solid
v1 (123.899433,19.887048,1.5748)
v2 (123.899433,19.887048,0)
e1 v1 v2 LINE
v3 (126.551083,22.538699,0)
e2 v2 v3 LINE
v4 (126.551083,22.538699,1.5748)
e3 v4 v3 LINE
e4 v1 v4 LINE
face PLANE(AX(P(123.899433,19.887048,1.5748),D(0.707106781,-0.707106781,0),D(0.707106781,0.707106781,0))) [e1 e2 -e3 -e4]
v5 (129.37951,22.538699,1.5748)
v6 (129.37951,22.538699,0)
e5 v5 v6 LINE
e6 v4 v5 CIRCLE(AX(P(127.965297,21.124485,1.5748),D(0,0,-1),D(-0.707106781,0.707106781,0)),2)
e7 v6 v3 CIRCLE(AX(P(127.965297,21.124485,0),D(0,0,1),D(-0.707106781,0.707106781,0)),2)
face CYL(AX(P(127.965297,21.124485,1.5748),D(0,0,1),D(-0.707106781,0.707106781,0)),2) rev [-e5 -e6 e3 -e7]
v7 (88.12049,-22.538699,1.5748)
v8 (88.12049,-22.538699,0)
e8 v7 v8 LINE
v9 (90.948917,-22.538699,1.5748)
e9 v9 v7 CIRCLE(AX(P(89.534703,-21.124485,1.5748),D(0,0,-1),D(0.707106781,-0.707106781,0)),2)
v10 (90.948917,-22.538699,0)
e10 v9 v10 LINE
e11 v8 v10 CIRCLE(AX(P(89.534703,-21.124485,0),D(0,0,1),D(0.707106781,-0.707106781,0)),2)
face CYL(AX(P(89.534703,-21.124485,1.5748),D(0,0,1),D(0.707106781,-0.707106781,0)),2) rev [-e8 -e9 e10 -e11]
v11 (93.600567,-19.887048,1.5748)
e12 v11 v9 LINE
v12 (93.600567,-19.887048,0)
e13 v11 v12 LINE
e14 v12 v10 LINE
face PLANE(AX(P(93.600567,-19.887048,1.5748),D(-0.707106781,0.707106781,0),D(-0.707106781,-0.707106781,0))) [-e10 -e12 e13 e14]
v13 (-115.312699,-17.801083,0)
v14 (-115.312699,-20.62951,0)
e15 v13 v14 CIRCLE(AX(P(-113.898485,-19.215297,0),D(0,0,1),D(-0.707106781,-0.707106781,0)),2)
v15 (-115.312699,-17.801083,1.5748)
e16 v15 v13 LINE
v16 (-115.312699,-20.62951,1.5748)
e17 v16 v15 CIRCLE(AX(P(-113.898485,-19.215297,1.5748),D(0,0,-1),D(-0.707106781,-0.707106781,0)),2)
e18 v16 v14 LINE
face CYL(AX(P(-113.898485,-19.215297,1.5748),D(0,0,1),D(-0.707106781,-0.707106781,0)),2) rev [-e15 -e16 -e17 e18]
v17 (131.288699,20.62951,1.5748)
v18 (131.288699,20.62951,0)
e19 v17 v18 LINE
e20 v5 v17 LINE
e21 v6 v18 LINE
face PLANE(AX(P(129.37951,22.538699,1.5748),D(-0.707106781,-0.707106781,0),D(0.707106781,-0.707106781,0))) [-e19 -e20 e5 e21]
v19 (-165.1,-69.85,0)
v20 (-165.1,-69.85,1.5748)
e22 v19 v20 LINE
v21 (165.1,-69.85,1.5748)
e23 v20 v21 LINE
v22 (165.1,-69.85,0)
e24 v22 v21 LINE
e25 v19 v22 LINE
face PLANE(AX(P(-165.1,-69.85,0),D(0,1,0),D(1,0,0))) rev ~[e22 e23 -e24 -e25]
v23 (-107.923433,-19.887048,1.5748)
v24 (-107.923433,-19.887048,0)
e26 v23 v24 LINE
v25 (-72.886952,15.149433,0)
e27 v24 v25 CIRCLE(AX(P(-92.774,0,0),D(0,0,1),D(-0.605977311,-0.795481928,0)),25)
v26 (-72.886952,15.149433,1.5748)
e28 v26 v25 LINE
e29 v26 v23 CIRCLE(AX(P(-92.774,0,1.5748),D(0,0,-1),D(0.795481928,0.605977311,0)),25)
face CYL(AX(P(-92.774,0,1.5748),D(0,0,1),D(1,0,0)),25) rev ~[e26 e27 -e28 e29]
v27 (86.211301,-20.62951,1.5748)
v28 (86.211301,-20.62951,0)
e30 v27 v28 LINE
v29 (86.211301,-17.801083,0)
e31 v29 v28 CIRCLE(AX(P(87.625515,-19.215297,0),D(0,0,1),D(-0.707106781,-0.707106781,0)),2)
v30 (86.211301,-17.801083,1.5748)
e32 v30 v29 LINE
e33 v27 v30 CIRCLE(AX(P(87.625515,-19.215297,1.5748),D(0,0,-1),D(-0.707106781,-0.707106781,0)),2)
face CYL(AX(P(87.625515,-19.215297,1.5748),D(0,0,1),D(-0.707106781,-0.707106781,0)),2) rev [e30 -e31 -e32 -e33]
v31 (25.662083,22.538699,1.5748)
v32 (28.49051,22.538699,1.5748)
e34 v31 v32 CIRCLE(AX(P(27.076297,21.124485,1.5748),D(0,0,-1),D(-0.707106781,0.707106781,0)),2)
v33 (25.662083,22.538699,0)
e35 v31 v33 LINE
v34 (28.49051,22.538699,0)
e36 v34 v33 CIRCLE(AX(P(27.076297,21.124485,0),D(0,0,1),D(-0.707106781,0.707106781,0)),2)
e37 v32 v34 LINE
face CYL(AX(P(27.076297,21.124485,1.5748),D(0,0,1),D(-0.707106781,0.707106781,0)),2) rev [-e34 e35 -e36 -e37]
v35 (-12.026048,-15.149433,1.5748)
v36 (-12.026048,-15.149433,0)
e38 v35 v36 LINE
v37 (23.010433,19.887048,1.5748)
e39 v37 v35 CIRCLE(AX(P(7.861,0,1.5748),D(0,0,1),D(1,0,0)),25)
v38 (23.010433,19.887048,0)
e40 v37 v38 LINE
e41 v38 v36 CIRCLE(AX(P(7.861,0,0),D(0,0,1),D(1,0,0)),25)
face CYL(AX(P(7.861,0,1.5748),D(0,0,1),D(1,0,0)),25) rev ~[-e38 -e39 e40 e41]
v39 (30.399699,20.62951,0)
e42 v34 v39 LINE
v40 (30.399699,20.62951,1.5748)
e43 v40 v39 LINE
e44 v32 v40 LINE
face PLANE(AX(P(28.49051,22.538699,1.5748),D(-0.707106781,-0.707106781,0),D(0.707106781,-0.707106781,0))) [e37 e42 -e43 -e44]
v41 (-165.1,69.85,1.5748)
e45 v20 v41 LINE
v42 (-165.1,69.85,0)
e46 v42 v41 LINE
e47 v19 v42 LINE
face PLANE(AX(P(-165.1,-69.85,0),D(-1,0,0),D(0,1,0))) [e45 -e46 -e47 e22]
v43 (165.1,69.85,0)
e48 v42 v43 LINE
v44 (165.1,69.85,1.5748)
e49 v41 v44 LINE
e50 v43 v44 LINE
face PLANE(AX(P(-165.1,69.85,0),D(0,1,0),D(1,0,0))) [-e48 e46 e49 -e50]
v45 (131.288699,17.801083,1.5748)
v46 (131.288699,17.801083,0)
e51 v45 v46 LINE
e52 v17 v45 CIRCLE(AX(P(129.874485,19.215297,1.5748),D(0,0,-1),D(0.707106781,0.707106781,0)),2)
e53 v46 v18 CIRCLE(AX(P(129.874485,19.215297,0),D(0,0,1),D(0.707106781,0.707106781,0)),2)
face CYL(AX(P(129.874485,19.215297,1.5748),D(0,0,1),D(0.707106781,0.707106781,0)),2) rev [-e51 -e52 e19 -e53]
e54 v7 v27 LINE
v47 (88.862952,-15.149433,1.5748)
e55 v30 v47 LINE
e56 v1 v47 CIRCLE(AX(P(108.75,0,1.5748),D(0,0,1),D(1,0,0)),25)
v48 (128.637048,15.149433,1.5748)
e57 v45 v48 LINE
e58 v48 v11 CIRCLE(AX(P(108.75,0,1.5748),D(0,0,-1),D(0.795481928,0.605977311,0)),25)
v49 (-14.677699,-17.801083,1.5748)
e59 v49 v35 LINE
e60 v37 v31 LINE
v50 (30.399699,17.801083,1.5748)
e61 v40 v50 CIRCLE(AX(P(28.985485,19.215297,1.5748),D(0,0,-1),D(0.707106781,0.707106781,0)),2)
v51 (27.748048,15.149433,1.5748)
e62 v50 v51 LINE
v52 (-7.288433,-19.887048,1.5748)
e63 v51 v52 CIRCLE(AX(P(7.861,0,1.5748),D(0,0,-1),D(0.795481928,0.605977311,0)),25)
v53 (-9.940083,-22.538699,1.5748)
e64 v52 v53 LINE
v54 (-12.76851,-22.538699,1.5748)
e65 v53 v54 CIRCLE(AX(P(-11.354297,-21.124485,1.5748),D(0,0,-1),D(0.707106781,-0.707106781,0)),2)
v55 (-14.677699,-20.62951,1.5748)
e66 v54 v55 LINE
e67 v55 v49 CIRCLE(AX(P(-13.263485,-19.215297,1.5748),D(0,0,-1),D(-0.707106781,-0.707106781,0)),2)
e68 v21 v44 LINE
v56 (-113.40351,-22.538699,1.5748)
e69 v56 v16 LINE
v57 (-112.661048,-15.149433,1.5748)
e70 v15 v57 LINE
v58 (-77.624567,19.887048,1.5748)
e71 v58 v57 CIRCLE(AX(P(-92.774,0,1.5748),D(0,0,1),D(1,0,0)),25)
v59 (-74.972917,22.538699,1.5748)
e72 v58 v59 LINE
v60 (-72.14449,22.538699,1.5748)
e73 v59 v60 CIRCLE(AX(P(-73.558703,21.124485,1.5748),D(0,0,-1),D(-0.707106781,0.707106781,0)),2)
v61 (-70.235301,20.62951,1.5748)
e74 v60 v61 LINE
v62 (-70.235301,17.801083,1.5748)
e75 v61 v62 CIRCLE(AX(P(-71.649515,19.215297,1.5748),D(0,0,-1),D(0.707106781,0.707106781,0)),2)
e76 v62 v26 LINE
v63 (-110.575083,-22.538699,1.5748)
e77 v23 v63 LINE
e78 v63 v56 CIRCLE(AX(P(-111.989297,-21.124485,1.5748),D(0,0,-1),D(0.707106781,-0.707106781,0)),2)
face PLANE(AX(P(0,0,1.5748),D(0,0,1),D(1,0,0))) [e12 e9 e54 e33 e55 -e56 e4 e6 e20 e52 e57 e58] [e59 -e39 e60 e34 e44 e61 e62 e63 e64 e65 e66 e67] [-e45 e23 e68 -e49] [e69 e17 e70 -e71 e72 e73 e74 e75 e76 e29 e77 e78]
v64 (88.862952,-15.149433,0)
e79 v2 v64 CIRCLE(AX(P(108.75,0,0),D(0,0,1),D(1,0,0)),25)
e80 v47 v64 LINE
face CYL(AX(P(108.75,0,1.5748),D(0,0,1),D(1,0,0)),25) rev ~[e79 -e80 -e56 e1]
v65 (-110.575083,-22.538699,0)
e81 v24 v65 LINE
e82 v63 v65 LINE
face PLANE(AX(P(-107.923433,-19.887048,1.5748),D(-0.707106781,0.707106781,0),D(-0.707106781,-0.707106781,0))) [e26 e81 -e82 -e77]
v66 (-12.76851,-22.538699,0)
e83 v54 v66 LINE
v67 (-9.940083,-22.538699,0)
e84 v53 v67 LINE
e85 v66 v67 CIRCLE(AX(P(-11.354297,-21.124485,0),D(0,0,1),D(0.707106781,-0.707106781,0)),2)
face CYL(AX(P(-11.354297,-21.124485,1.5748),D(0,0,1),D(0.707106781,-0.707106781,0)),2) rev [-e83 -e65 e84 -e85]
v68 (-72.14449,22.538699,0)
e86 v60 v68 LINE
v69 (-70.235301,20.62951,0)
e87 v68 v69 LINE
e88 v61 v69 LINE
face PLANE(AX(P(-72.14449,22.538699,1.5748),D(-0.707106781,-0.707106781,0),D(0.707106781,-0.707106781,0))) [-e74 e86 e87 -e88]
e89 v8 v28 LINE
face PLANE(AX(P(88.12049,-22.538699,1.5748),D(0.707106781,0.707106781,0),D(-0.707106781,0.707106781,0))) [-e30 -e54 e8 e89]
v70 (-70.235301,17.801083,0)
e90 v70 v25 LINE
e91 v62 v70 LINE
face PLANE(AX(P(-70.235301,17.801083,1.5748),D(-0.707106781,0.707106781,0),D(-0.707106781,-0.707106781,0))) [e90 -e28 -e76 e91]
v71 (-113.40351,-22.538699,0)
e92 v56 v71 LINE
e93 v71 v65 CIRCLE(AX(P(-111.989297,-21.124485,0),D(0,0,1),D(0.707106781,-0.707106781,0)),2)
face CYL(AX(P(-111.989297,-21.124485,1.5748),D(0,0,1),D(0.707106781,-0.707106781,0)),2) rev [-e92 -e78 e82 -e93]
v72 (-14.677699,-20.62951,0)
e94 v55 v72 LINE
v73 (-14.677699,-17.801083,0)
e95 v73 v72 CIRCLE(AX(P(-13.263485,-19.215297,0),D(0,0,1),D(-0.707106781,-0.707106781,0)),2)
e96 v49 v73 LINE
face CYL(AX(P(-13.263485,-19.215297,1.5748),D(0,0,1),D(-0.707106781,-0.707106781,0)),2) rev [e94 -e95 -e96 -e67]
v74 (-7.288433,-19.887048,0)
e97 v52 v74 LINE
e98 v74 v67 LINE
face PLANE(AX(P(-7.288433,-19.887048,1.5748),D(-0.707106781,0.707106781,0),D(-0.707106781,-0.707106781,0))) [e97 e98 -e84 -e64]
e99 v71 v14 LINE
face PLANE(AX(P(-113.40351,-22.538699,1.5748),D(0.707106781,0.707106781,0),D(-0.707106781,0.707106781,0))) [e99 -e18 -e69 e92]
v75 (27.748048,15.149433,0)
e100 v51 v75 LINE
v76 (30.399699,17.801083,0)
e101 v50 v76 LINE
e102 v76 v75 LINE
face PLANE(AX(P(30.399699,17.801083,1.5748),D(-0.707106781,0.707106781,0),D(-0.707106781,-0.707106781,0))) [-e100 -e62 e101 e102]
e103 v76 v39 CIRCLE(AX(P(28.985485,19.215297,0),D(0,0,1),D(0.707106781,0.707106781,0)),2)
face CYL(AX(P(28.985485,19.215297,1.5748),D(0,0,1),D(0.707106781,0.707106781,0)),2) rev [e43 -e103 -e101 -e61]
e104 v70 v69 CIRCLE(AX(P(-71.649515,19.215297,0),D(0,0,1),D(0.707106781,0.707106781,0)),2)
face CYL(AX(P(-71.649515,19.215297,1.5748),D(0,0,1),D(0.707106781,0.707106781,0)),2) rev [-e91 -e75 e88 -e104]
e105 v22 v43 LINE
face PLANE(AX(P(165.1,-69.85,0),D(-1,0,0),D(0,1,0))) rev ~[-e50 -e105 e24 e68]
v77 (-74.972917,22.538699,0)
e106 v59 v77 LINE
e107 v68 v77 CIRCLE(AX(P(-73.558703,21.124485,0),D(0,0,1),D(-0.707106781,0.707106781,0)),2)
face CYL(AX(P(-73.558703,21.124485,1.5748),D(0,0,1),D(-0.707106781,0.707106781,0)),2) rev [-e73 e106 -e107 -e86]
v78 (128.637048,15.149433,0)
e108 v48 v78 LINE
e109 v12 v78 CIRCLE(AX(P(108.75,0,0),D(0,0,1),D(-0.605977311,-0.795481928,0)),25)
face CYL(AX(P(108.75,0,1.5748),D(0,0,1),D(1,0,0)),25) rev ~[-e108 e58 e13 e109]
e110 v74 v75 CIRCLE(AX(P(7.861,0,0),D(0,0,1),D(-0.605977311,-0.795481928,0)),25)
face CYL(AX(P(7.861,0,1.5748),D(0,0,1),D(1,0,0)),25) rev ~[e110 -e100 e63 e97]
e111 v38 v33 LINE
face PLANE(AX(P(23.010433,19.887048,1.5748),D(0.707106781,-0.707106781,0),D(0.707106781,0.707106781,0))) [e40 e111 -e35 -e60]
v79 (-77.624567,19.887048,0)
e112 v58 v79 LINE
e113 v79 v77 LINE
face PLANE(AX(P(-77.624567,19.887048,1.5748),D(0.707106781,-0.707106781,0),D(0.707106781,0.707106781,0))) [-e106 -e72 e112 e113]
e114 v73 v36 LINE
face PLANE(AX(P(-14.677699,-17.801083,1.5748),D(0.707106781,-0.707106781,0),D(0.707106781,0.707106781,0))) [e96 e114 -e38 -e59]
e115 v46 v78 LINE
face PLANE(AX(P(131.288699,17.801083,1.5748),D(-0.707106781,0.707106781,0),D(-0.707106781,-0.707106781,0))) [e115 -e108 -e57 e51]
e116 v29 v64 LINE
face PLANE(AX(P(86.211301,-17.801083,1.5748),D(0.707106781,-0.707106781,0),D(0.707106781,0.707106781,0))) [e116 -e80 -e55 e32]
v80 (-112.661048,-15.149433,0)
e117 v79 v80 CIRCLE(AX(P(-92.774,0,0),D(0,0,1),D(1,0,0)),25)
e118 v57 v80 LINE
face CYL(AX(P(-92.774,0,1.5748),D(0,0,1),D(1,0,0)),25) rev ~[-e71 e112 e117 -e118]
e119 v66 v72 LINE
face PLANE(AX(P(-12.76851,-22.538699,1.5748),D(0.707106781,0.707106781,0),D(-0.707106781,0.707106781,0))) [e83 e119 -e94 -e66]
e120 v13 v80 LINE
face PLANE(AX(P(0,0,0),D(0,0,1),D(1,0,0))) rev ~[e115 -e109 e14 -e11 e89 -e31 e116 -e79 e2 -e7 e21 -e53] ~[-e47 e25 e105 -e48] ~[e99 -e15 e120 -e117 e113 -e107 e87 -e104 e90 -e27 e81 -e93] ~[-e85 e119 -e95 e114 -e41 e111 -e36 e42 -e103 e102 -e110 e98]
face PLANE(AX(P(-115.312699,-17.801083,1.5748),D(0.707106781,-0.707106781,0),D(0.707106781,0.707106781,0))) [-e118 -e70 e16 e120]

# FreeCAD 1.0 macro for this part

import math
import FreeCAD as App
import Part
import Sketcher
from FreeCAD import Vector

doc = App.newDocument("Part")
body = doc.addObject("PartDesign::Body", "Body")

# Sketch on XY plane
sketch1 = body.newObject("Sketcher::SketchObject", "Sketch")
sketch1.AttachmentSupport = (doc.getObject("XY_Plane"), [""])
sketch1.MapMode = "FlatFace"
sketch1.addGeometry([
    Part.LineSegment(Vector(-165, 70, 0), Vector(-165, -70, 0)),
    Part.LineSegment(Vector(-165, -70, 0), Vector(165, -70, 0)),
    Part.LineSegment(Vector(165, -70, 0), Vector(165, 70, 0)),
    Part.LineSegment(Vector(165, 70, 0), Vector(-165, 70, 0)),
], False)
sketch1.addConstraint([
    Sketcher.Constraint("Coincident", 0, 2, 1, 1),
    Sketcher.Constraint("Coincident", 1, 2, 2, 1),
    Sketcher.Constraint("Coincident", 2, 2, 3, 1),
    Sketcher.Constraint("Coincident", 3, 2, 0, 1),
    Sketcher.Constraint("Vertical", 0),
    Sketcher.Constraint("Horizontal", 1),
    Sketcher.Constraint("Vertical", 2),
    Sketcher.Constraint("Horizontal", 3),
    Sketcher.Constraint("Symmetric", 0, 2, 2, 2, -1, 1),
    Sketcher.Constraint("DistanceX", 1, 1, 1, 2, 330.2),
    Sketcher.Constraint("DistanceY", 0, 2, 0, 1, 139.7),
])
pad1 = body.newObject("PartDesign::Pad", "Pad")
pad1.Profile = sketch1
pad1.Length = 1.5748

# Sketch on XY plane
sketch2 = body.newObject("Sketcher::SketchObject", "Sketch001")
sketch2.AttachmentSupport = (doc.getObject("XY_Plane"), [""])
sketch2.MapMode = "FlatFace"
sketch2.AttachmentOffset = App.Placement(Vector(0, 0, 1.5748), App.Rotation())
sketch2.addGeometry([
    Part.Circle(Vector(109, 0, 0), Vector(0, 0, 1), 25),
    Part.Circle(Vector(8, 0, 0), Vector(0, 0, 1), 25),
    Part.Circle(Vector(-93, 0, 0), Vector(0, 0, 1), 25),
], False)
sketch2.addConstraint([
    Sketcher.Constraint("Equal", 0, 1),
    Sketcher.Constraint("Equal", 1, 2),
    Sketcher.Constraint("PointOnObject", 0, 3, -1),
    Sketcher.Constraint("PointOnObject", 1, 3, -1),
    Sketcher.Constraint("PointOnObject", 2, 3, -1),
    Sketcher.Constraint("Diameter", 0, 50.0),
    Sketcher.Constraint("DistanceX", -1, 1, 0, 3, 108.75),
    Sketcher.Constraint("DistanceX", -1, 1, 1, 3, 7.861),
    Sketcher.Constraint("DistanceX", 2, 3, -1, 1, 92.774),
])
pocket1 = body.newObject("PartDesign::Pocket", "Pocket")
pocket1.Profile = sketch2
pocket1.Type = "ThroughAll"

# Sketch on XY plane
sketch3 = body.newObject("Sketcher::SketchObject", "Sketch002")
sketch3.AttachmentSupport = (doc.getObject("XY_Plane"), [""])
sketch3.MapMode = "FlatFace"
sketch3.AttachmentOffset = App.Placement(Vector(0, 0, 1.5748), App.Rotation())
sketch3.addGeometry([
    Part.LineSegment(Vector(86.2, -20.6, 0), Vector(88.1, -22.5, 0)),  # 0
    Part.ArcOfCircle(Part.Circle(Vector(89.5, -21.1, 0), Vector(0, 0, 1), 2), math.radians(-135), math.radians(-45)),  # 1
    Part.LineSegment(Vector(90.9, -22.5, 0), Vector(93.6, -19.9, 0)),  # 2
    Part.ArcOfCircle(Part.Circle(Vector(108.7, 0, 0), Vector(0, 0, 1), 25), math.radians(-142.7), math.radians(-127.3)),  # 3
    Part.LineSegment(Vector(88.9, -15.1, 0), Vector(86.2, -17.8, 0)),  # 4
    Part.ArcOfCircle(Part.Circle(Vector(87.6, -19.2, 0), Vector(0, 0, 1), 2), math.radians(135), math.radians(225)),  # 5
    Part.LineSegment(Vector(128.6, 15.1, 0), Vector(131.3, 17.8, 0)),  # 6
    Part.ArcOfCircle(Part.Circle(Vector(129.9, 19.2, 0), Vector(0, 0, 1), 2), math.radians(-45), math.radians(45)),  # 7
    Part.LineSegment(Vector(131.3, 20.6, 0), Vector(129.4, 22.5, 0)),  # 8
    Part.ArcOfCircle(Part.Circle(Vector(128, 21.1, 0), Vector(0, 0, 1), 2), math.radians(45), math.radians(135)),  # 9
    Part.LineSegment(Vector(126.6, 22.5, 0), Vector(123.9, 19.9, 0)),  # 10
    Part.ArcOfCircle(Part.Circle(Vector(108.8, 0, 0), Vector(0, 0, 1), 25), math.radians(37.3), math.radians(52.7)),  # 11
    Part.LineSegment(Vector(27.7, 15.1, 0), Vector(30.4, 17.8, 0)),  # 12
    Part.ArcOfCircle(Part.Circle(Vector(29, 19.2, 0), Vector(0, 0, 1), 2), math.radians(-45), math.radians(45)),  # 13
    Part.LineSegment(Vector(30.4, 20.6, 0), Vector(28.5, 22.5, 0)),  # 14
    Part.ArcOfCircle(Part.Circle(Vector(27.1, 21.1, 0), Vector(0, 0, 1), 2), math.radians(45), math.radians(135)),  # 15
    Part.LineSegment(Vector(25.7, 22.5, 0), Vector(23, 19.9, 0)),  # 16
    Part.ArcOfCircle(Part.Circle(Vector(7.9, 0, 0), Vector(0, 0, 1), 25), math.radians(37.3), math.radians(52.7)),  # 17
    Part.LineSegment(Vector(-9.9, -22.5, 0), Vector(-7.3, -19.9, 0)),  # 18
    Part.ArcOfCircle(Part.Circle(Vector(7.9, 0, 0), Vector(0, 0, 1), 25), math.radians(-142.7), math.radians(-127.3)),  # 19
    Part.LineSegment(Vector(-12, -15.1, 0), Vector(-14.7, -17.8, 0)),  # 20
    Part.ArcOfCircle(Part.Circle(Vector(-13.3, -19.2, 0), Vector(0, 0, 1), 2), math.radians(135), math.radians(225)),  # 21
    Part.LineSegment(Vector(-14.7, -20.6, 0), Vector(-12.8, -22.5, 0)),  # 22
    Part.ArcOfCircle(Part.Circle(Vector(-11.4, -21.1, 0), Vector(0, 0, 1), 2), math.radians(-135), math.radians(-45)),  # 23
    Part.LineSegment(Vector(-112.7, -15.1, 0), Vector(-115.3, -17.8, 0)),  # 24
    Part.ArcOfCircle(Part.Circle(Vector(-113.9, -19.2, 0), Vector(0, 0, 1), 2), math.radians(135), math.radians(225)),  # 25
    Part.LineSegment(Vector(-115.3, -20.6, 0), Vector(-113.4, -22.5, 0)),  # 26
    Part.ArcOfCircle(Part.Circle(Vector(-112, -21.1, 0), Vector(0, 0, 1), 2), math.radians(-135), math.radians(-45)),  # 27
    Part.LineSegment(Vector(-110.6, -22.5, 0), Vector(-107.9, -19.9, 0)),  # 28
    Part.ArcOfCircle(Part.Circle(Vector(-92.8, 0, 0), Vector(0, 0, 1), 25), math.radians(-142.7), math.radians(-127.3)),  # 29
    Part.LineSegment(Vector(-72.9, 15.1, 0), Vector(-70.2, 17.8, 0)),  # 30
    Part.ArcOfCircle(Part.Circle(Vector(-71.6, 19.2, 0), Vector(0, 0, 1), 2), math.radians(-45), math.radians(45)),  # 31
    Part.LineSegment(Vector(-70.2, 20.6, 0), Vector(-72.1, 22.5, 0)),  # 32
    Part.ArcOfCircle(Part.Circle(Vector(-73.6, 21.1, 0), Vector(0, 0, 1), 2), math.radians(45), math.radians(135)),  # 33
    Part.LineSegment(Vector(-75, 22.5, 0), Vector(-77.6, 19.9, 0)),  # 34
    Part.ArcOfCircle(Part.Circle(Vector(-92.8, 0, 0), Vector(0, 0, 1), 25), math.radians(37.3), math.radians(52.7)),  # 35
], False)
sketch3.addConstraint([
    Sketcher.Constraint("Tangent", 0, 2, 1, 1),
    Sketcher.Constraint("Tangent", 1, 2, 2, 1),
    Sketcher.Constraint("Coincident", 2, 2, 3, 2),
    Sketcher.Constraint("Coincident", 3, 1, 4, 1),
    Sketcher.Constraint("Tangent", 4, 2, 5, 1),
    Sketcher.Constraint("Tangent", 5, 2, 0, 1),
    Sketcher.Constraint("Tangent", 6, 2, 7, 1),
    Sketcher.Constraint("Tangent", 7, 2, 8, 1),
    Sketcher.Constraint("Tangent", 8, 2, 9, 1),
    Sketcher.Constraint("Tangent", 9, 2, 10, 1),
    Sketcher.Constraint("Coincident", 10, 2, 11, 2),
    Sketcher.Constraint("Coincident", 11, 1, 6, 1),
    Sketcher.Constraint("Tangent", 12, 2, 13, 1),
    Sketcher.Constraint("Tangent", 13, 2, 14, 1),
    Sketcher.Constraint("Tangent", 14, 2, 15, 1),
    Sketcher.Constraint("Tangent", 15, 2, 16, 1),
    Sketcher.Constraint("Coincident", 16, 2, 17, 2),
    Sketcher.Constraint("Coincident", 17, 1, 12, 1),
    Sketcher.Constraint("Coincident", 18, 2, 19, 2),
    Sketcher.Constraint("Coincident", 19, 1, 20, 1),
    Sketcher.Constraint("Tangent", 20, 2, 21, 1),
    Sketcher.Constraint("Tangent", 21, 2, 22, 1),
    Sketcher.Constraint("Tangent", 22, 2, 23, 1),
    Sketcher.Constraint("Tangent", 23, 2, 18, 1),
    Sketcher.Constraint("Tangent", 24, 2, 25, 1),
    Sketcher.Constraint("Tangent", 25, 2, 26, 1),
    Sketcher.Constraint("Tangent", 26, 2, 27, 1),
    Sketcher.Constraint("Tangent", 27, 2, 28, 1),
    Sketcher.Constraint("Coincident", 28, 2, 29, 2),
    Sketcher.Constraint("Coincident", 29, 1, 24, 1),
    Sketcher.Constraint("Tangent", 30, 2, 31, 1),
    Sketcher.Constraint("Tangent", 31, 2, 32, 1),
    Sketcher.Constraint("Tangent", 32, 2, 33, 1),
    Sketcher.Constraint("Tangent", 33, 2, 34, 1),
    Sketcher.Constraint("Coincident", 34, 2, 35, 2),
    Sketcher.Constraint("Coincident", 35, 1, 30, 1),
    Sketcher.Constraint("Coincident", 11, 3, 3, 3),
    Sketcher.Constraint("Coincident", 19, 3, 17, 3),
    Sketcher.Constraint("Coincident", 35, 3, 29, 3),
    Sketcher.Constraint("Equal", 1, 5),
    Sketcher.Constraint("Equal", 5, 7),
    Sketcher.Constraint("Equal", 7, 9),
    Sketcher.Constraint("Equal", 3, 11),
    Sketcher.Constraint("Equal", 9, 13),
    Sketcher.Constraint("Equal", 13, 15),
    Sketcher.Constraint("Equal", 11, 17),
    Sketcher.Constraint("Equal", 17, 19),
    Sketcher.Constraint("Equal", 15, 21),
    Sketcher.Constraint("Equal", 21, 23),
    Sketcher.Constraint("Equal", 23, 25),
    Sketcher.Constraint("Equal", 25, 27),
    Sketcher.Constraint("Equal", 19, 29),
    Sketcher.Constraint("Equal", 27, 31),
    Sketcher.Constraint("Equal", 31, 33),
    Sketcher.Constraint("Equal", 29, 35),
    Sketcher.Constraint("PointOnObject", 3, 3, -1),
    Sketcher.Constraint("PointOnObject", 17, 3, -1),
    Sketcher.Constraint("PointOnObject", 29, 3, -1),
    Sketcher.Constraint("Perpendicular", 0, 2),
    Sketcher.Constraint("Parallel", 2, 4),
    Sketcher.Constraint("Parallel", 4, 6),
    Sketcher.Constraint("Perpendicular", 6, 8),
    Sketcher.Constraint("Perpendicular", 8, 10),
    Sketcher.Constraint("Parallel", 10, 12),
    Sketcher.Constraint("Perpendicular", 12, 14),
    Sketcher.Constraint("Perpendicular", 14, 16),
    Sketcher.Constraint("Parallel", 16, 18),
    Sketcher.Constraint("Parallel", 18, 20),
    Sketcher.Constraint("Perpendicular", 20, 22),
    Sketcher.Constraint("Perpendicular", 22, 24),
    Sketcher.Constraint("Perpendicular", 24, 26),
    Sketcher.Constraint("Perpendicular", 26, 28),
    Sketcher.Constraint("Parallel", 28, 30),
    Sketcher.Constraint("Perpendicular", 30, 32),
    Sketcher.Constraint("Perpendicular", 32, 34),
    Sketcher.Constraint("Horizontal", 7, 3, 13, 3),
    Sketcher.Constraint("Horizontal", 9, 3, 15, 3),
    Sketcher.Constraint("Horizontal", 5, 3, 21, 3),
    Sketcher.Constraint("Horizontal", 1, 3, 23, 3),
    Sketcher.Constraint("Horizontal", 21, 3, 25, 3),
    Sketcher.Constraint("Horizontal", 23, 3, 27, 3),
    Sketcher.Constraint("Horizontal", 13, 3, 31, 3),
    Sketcher.Constraint("Horizontal", 15, 3, 33, 3),
    Sketcher.Constraint("Horizontal", 0, 2, 1, 2),
    Sketcher.Constraint("Horizontal", 10, 2, 16, 2),
    Sketcher.Constraint("Horizontal", 2, 2, 18, 2),
    Sketcher.Constraint("Horizontal", 18, 2, 28, 2),
    Sketcher.Constraint("Horizontal", 16, 2, 34, 2),
    Sketcher.Constraint("Equal", 2, 4),
    Sketcher.Constraint("Equal", 4, 6),
    Sketcher.Constraint("Equal", 0, 8),
    Sketcher.Constraint("Equal", 6, 10),
    Sketcher.Constraint("Radius", 1, 2.0),
    Sketcher.Constraint("Radius", 3, 25.0),
    Sketcher.Constraint("Distance", 0, 2.7),
    Sketcher.Constraint("Distance", 2, 3.75),
    Sketcher.Constraint("DistanceX", -1, 1, 3, 3, 108.75),
    Sketcher.Constraint("DistanceX", -1, 1, 17, 3, 7.861),
    Sketcher.Constraint("DistanceX", 29, 3, -1, 1, 92.774),
])
pocket2 = body.newObject("PartDesign::Pocket", "Pocket001")
pocket2.Profile = sketch3
pocket2.Length = 4

doc.recompute()
